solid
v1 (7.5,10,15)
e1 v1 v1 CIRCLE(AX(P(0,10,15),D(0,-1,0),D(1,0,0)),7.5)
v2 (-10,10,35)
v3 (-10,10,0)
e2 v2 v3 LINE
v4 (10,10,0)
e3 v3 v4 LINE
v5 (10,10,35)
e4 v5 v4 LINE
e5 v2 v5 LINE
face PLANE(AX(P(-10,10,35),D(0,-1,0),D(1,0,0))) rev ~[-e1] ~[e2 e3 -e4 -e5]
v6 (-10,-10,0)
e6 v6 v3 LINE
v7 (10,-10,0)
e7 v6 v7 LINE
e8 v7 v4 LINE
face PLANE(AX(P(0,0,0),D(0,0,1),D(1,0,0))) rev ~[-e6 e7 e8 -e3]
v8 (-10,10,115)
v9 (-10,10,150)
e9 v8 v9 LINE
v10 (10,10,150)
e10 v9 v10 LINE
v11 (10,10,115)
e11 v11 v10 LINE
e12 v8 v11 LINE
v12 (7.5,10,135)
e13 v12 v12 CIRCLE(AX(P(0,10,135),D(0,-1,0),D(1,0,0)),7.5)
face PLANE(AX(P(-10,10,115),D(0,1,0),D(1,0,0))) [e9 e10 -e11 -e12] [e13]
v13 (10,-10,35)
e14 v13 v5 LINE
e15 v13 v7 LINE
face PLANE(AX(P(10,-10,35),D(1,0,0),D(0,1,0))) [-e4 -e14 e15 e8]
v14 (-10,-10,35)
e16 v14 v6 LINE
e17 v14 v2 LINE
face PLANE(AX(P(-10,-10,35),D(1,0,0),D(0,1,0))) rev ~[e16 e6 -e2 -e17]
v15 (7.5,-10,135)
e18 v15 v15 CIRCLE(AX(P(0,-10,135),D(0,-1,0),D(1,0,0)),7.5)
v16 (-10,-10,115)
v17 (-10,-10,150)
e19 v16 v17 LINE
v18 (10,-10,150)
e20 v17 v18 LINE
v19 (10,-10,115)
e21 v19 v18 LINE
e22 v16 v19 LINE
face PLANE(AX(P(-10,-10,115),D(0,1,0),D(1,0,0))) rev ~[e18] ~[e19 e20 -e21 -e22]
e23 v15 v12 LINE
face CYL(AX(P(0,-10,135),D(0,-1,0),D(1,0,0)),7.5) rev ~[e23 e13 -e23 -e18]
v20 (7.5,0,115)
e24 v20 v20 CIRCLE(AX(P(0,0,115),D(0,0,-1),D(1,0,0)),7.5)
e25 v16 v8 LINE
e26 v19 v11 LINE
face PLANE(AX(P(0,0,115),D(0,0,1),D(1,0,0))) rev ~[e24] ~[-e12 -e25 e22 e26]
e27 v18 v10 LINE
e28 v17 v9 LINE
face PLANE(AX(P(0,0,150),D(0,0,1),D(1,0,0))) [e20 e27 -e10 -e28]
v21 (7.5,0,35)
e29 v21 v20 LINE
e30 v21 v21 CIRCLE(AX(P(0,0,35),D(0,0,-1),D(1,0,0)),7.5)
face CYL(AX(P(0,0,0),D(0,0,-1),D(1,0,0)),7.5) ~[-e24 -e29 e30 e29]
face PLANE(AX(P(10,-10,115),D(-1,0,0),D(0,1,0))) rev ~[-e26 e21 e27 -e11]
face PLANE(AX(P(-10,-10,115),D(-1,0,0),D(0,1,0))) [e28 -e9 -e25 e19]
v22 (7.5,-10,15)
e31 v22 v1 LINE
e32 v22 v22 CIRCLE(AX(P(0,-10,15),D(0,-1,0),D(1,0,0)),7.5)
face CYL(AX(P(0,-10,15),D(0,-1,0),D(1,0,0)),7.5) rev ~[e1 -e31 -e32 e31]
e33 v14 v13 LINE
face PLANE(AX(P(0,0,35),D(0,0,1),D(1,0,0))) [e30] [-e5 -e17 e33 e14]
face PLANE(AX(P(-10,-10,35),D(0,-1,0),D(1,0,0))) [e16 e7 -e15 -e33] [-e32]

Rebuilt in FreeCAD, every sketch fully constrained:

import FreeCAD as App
import Part
import Sketcher
Q = App.Units.Quantity


def add_polygon(sketch, points):
    """Adds a closed chain of lines whose ends are joined by coincident constraints."""
    first, n = sketch.GeometryCount, len(points)
    for a, b in zip(points, points[1:] + points[:1]):
        sketch.addGeometry(Part.LineSegment(App.Vector(*a, 0), App.Vector(*b, 0)), False)
    for i in range(n):
        sketch.addConstraint(Sketcher.Constraint("Coincident", first + i, 2, first + (i + 1) % n, 1))

doc = App.newDocument("Part")
body = doc.addObject("PartDesign::Body", "Body")

sketch1 = body.newObject("Sketcher::SketchObject", "Sketch")
sketch1.AttachmentSupport = (doc.getObject("XY_Plane"), [""])
sketch1.MapMode = "FlatFace"
sketch1.addGeometry(Part.Circle(App.Vector(0, 0, 0), App.Vector(0, 0, 1), 8), False)
sketch1.addConstraint(Sketcher.Constraint("Coincident", 0, 3, -1, 1))
sketch1.addConstraint(Sketcher.Constraint("Diameter", 0, Q("15 mm")))
pad1 = body.newObject("PartDesign::Pad", "Pad")
pad1.Profile = sketch1
pad1.Length = 150

sketch2 = body.newObject("Sketcher::SketchObject", "Sketch001")
sketch2.AttachmentSupport = (doc.getObject("XY_Plane"), [""])
sketch2.MapMode = "FlatFace"
sketch2.AttachmentOffset = App.Placement(App.Vector(0, 0, 35), App.Rotation())
add_polygon(sketch2, [(-10, 10), (-10, -10), (10, -10), (10, 10)])
sketch2.addConstraint(Sketcher.Constraint("Vertical", 0))
sketch2.addConstraint(Sketcher.Constraint("Horizontal", 1))
sketch2.addConstraint(Sketcher.Constraint("Vertical", 2))
sketch2.addConstraint(Sketcher.Constraint("Horizontal", 3))
sketch2.addConstraint(Sketcher.Constraint("Symmetric", 0, 2, 2, 2, -1, 1))
sketch2.addConstraint(Sketcher.Constraint("Equal", 3, 0))
sketch2.addConstraint(Sketcher.Constraint("DistanceX", 1, 1, 1, 2, Q("20 mm")))
pad2 = body.newObject("PartDesign::Pad", "Pad001")
pad2.Profile = sketch2
pad2.Length = 35
pad2.Reversed = True

sketch3 = body.newObject("Sketcher::SketchObject", "Sketch002")
sketch3.AttachmentSupport = (doc.getObject("XY_Plane"), [""])
sketch3.MapMode = "FlatFace"
sketch3.AttachmentOffset = App.Placement(App.Vector(0, 0, 115), App.Rotation())
add_polygon(sketch3, [(-10, 10), (-10, -10), (10, -10), (10, 10)])
sketch3.addConstraint(Sketcher.Constraint("Vertical", 0))
sketch3.addConstraint(Sketcher.Constraint("Horizontal", 1))
sketch3.addConstraint(Sketcher.Constraint("Vertical", 2))
sketch3.addConstraint(Sketcher.Constraint("Horizontal", 3))
sketch3.addConstraint(Sketcher.Constraint("Symmetric", 0, 2, 2, 2, -1, 1))
sketch3.addConstraint(Sketcher.Constraint("Equal", 3, 0))
sketch3.addConstraint(Sketcher.Constraint("DistanceX", 1, 1, 1, 2, Q("20 mm")))
pad3 = body.newObject("PartDesign::Pad", "Pad002")
pad3.Profile = sketch3
pad3.Length = 35

sketch4 = body.newObject("Sketcher::SketchObject", "Sketch003")
sketch4.AttachmentSupport = (doc.getObject("XZ_Plane"), [""])
sketch4.MapMode = "FlatFace"
sketch4.AttachmentOffset = App.Placement(App.Vector(0, 0, 10), App.Rotation())
sketch4.addGeometry(Part.Circle(App.Vector(0, 135, 0), App.Vector(0, 0, 1), 8), False)
sketch4.addGeometry(Part.Circle(App.Vector(0, 15, 0), App.Vector(0, 0, 1), 8), False)
sketch4.addConstraint(Sketcher.Constraint("Equal", 0, 1))
sketch4.addConstraint(Sketcher.Constraint("PointOnObject", 0, 3, -2))
sketch4.addConstraint(Sketcher.Constraint("PointOnObject", 1, 3, -2))
sketch4.addConstraint(Sketcher.Constraint("Diameter", 0, Q("15 mm")))
sketch4.addConstraint(Sketcher.Constraint("DistanceY", -1, 1, 0, 3, Q("135 mm")))
sketch4.addConstraint(Sketcher.Constraint("DistanceY", -1, 1, 1, 3, Q("15 mm")))
pocket1 = body.newObject("PartDesign::Pocket", "Pocket")
pocket1.Profile = sketch4
pocket1.Type = "ThroughAll"

doc.recompute()
